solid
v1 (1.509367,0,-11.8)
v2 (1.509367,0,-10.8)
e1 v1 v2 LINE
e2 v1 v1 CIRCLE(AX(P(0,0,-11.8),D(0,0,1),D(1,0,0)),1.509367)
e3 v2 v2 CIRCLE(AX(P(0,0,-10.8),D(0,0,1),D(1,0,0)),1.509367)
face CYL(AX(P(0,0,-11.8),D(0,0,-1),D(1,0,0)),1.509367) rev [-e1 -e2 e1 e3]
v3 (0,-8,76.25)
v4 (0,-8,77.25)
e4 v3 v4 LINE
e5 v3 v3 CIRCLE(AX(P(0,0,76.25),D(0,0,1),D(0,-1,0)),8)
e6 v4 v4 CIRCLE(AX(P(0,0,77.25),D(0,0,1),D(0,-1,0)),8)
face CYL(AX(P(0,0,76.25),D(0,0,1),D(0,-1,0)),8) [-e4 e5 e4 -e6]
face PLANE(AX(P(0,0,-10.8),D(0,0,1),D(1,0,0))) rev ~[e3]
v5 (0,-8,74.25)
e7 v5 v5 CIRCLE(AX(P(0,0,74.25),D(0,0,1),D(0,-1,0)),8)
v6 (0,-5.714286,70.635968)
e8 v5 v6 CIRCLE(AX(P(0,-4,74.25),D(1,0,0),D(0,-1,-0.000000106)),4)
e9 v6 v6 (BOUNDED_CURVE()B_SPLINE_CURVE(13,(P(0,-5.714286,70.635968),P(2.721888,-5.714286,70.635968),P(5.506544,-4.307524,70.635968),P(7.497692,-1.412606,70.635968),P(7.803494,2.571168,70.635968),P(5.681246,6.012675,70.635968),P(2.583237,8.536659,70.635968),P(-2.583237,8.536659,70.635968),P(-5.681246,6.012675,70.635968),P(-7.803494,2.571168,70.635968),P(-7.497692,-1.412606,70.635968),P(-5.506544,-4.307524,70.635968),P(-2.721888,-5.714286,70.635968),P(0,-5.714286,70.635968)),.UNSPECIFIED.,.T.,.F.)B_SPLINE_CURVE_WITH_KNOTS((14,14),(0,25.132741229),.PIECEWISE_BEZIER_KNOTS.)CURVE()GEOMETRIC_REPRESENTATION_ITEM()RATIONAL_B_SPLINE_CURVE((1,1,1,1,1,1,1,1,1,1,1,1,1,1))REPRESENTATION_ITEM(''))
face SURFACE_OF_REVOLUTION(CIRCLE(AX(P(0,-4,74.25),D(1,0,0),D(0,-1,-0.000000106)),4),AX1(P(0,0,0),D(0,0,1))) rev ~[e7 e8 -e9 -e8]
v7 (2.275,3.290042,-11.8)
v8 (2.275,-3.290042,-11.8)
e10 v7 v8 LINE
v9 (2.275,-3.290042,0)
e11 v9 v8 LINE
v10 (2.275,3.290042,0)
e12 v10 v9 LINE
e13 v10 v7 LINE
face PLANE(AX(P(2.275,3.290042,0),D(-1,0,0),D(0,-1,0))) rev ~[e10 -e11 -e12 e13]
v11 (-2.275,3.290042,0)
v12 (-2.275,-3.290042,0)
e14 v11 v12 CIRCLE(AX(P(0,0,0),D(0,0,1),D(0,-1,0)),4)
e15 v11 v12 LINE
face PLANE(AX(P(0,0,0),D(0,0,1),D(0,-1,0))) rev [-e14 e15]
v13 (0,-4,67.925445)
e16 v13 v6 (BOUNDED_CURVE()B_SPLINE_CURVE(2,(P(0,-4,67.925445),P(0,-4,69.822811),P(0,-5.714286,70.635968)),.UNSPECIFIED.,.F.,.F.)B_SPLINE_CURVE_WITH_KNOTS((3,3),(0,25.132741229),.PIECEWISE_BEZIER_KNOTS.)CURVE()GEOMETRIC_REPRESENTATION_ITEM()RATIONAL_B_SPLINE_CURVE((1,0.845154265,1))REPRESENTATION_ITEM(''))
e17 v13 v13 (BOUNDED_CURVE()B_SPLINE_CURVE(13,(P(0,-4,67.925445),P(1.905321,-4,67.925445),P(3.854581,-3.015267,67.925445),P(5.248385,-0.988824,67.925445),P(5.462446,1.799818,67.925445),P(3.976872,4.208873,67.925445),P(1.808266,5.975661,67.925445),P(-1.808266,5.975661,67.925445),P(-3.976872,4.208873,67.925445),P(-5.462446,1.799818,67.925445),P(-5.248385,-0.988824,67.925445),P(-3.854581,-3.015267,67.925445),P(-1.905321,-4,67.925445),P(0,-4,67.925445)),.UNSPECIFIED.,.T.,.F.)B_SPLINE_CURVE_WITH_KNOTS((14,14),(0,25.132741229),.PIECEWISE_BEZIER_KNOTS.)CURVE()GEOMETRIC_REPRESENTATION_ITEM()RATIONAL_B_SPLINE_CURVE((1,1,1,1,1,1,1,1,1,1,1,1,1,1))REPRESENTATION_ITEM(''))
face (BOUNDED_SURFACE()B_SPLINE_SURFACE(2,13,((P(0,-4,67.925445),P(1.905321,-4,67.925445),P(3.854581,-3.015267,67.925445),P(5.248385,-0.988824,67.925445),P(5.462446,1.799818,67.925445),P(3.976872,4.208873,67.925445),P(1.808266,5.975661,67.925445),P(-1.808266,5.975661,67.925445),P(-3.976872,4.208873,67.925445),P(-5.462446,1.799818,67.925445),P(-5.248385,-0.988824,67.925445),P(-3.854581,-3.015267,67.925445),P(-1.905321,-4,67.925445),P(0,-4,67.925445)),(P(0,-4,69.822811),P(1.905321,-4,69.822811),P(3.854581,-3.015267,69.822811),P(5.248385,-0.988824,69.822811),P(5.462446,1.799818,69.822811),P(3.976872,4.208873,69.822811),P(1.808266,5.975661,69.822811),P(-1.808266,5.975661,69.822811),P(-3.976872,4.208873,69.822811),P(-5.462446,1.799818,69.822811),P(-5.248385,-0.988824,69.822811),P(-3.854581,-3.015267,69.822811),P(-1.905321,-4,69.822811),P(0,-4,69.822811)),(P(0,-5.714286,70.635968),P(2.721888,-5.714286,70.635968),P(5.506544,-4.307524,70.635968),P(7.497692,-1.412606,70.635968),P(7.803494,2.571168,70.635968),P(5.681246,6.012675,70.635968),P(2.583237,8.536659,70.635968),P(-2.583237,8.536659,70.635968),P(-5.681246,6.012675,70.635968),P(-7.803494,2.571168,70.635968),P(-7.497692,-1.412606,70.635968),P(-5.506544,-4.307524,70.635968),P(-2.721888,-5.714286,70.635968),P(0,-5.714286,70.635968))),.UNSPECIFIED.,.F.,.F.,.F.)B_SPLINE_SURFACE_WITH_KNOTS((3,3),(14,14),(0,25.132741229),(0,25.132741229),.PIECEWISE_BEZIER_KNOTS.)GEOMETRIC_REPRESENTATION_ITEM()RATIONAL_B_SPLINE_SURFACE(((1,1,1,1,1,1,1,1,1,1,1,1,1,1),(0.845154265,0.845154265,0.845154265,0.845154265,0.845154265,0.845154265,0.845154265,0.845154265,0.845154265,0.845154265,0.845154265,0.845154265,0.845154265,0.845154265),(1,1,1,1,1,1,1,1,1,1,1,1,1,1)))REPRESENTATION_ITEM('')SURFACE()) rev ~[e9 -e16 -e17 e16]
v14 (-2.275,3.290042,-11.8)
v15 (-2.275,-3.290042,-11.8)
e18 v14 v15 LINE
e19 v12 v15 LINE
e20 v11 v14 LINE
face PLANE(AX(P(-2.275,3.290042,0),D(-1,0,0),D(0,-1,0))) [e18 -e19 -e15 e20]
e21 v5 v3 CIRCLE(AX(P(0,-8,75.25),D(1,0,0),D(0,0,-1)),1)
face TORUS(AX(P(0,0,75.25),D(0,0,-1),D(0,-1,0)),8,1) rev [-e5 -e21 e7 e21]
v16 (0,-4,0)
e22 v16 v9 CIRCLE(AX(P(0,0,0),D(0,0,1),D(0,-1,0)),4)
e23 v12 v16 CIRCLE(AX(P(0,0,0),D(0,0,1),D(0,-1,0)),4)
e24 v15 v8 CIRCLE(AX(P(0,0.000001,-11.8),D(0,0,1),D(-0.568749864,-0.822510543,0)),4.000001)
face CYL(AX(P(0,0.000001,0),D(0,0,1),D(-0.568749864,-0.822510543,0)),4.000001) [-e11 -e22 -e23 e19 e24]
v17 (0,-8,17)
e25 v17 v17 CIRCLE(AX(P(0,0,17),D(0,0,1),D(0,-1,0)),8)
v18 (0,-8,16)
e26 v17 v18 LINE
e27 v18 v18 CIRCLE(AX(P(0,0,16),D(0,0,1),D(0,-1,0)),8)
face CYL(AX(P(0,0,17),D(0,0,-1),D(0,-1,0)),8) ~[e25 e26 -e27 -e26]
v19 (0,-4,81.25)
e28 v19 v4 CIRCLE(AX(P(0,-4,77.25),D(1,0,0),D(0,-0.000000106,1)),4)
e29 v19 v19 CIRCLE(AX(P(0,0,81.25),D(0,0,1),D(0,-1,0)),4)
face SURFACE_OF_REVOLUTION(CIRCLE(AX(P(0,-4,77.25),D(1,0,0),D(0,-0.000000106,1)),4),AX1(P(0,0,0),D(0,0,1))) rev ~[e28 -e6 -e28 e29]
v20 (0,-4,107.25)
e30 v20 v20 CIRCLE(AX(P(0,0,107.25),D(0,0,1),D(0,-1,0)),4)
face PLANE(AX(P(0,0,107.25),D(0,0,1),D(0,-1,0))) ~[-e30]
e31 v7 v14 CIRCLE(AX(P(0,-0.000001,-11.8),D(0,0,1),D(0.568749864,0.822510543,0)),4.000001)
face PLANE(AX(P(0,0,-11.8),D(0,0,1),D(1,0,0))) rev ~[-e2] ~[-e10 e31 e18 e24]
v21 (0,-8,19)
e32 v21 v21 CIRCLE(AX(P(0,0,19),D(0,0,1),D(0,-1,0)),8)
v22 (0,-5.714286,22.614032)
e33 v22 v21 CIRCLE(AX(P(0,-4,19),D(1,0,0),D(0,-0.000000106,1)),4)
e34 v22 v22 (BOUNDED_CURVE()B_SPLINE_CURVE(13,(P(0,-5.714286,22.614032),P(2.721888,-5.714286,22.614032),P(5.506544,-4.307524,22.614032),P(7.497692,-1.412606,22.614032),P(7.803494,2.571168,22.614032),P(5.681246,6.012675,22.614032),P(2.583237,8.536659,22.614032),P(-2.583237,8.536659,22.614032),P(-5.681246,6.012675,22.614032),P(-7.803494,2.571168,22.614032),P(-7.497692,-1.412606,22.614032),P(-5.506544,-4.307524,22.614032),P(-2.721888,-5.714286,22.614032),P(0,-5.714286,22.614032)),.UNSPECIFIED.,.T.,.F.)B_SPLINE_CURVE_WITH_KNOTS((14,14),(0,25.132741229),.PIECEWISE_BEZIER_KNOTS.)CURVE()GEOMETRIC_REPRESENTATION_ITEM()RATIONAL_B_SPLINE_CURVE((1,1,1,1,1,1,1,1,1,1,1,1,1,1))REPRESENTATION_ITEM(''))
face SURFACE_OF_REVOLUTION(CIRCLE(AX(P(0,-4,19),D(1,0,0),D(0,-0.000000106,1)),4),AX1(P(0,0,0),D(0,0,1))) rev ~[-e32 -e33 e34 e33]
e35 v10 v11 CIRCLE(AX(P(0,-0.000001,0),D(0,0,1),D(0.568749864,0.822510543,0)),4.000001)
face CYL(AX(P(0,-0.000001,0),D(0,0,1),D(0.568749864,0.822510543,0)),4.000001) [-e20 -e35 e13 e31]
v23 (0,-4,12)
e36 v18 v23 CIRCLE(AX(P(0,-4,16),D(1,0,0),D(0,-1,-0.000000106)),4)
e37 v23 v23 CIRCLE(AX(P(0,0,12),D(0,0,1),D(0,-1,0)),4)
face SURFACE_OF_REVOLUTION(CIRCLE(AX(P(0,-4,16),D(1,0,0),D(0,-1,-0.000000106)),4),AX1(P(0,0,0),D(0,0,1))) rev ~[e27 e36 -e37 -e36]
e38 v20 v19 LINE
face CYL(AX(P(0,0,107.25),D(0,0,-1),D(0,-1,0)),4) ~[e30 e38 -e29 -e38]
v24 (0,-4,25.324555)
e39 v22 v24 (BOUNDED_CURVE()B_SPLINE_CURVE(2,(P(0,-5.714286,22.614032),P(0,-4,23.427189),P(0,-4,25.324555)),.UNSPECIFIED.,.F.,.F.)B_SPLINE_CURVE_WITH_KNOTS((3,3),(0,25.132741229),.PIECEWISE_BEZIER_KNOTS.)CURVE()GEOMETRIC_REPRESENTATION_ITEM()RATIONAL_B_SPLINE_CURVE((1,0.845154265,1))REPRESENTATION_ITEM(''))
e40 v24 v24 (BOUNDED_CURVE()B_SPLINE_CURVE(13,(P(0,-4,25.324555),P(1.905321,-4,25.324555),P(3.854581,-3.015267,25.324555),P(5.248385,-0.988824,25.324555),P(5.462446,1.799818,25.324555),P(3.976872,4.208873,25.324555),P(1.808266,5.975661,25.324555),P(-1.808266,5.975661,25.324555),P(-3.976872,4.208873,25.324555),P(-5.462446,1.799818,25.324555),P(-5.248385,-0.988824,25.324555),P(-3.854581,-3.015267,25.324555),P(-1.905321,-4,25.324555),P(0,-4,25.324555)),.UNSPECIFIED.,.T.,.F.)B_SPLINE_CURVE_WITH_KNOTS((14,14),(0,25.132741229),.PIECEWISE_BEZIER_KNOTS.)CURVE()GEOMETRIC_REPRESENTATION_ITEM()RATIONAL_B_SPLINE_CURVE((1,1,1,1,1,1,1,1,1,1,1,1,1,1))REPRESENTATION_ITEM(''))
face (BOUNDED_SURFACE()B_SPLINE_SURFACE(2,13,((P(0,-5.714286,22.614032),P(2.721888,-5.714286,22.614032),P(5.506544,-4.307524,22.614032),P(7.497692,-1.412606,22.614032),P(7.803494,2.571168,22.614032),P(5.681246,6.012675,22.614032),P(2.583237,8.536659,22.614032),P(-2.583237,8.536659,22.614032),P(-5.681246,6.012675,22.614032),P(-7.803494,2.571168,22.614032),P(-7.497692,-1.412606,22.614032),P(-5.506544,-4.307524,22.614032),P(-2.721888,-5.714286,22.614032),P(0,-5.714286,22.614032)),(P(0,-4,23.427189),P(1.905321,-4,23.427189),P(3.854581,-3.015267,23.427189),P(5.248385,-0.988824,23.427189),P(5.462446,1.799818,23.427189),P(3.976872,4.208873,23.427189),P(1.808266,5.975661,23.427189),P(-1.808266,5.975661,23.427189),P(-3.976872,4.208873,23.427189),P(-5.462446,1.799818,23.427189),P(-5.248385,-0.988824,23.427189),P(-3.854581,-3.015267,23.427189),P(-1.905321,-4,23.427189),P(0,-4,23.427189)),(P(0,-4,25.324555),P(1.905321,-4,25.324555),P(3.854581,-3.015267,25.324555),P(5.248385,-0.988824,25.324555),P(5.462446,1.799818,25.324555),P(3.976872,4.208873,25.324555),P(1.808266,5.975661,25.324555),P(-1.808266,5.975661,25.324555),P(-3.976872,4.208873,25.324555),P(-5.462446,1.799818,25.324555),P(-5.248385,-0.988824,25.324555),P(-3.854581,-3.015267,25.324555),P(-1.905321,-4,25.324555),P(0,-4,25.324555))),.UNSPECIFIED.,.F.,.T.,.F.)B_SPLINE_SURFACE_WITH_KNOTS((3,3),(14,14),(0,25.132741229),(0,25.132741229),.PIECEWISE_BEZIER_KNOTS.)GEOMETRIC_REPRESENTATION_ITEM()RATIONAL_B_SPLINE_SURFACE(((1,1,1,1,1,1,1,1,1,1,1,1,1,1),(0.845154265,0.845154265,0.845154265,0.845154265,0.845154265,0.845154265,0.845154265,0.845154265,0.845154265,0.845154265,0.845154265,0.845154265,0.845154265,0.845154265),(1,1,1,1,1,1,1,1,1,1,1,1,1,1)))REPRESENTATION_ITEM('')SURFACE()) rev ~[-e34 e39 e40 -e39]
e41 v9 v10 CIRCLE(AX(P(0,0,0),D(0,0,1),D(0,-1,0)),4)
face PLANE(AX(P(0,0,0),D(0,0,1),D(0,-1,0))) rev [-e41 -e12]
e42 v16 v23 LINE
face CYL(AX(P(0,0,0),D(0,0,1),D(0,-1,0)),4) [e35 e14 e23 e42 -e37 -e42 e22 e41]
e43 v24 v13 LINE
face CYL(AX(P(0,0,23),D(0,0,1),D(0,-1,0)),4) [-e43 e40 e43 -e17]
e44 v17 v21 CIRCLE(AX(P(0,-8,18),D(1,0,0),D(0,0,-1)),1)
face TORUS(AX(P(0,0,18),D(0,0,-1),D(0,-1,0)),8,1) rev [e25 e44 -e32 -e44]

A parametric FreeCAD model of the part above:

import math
import FreeCAD as App
import Part
import Sketcher

V = App.Vector


def edges_at(feature, points):
    """Names of the edges that pass closest to the given points."""
    edges = feature.Shape.Edges
    near = lambda p: min(range(len(edges)), key=lambda i: edges[i].distToShape(Part.Vertex(*p))[0])
    return sorted({f"Edge{near(p) + 1}" for p in points})

doc = App.newDocument("Part")
body = doc.addObject("PartDesign::Body", "Body")

sketch1 = doc.addObject("Sketcher::SketchObject", "Sketch")
body.addObject(sketch1)
sketch1.AttachmentSupport = (doc.YZ_Plane, [""])
sketch1.MapMode = "FlatFace"
sketch1.addGeometry([
    Part.LineSegment(V(-4, 0, 0), V(0, 0, 0)),
    Part.LineSegment(V(0, 0, 0), V(0, 107.2, 0)),
    Part.LineSegment(V(0, 107.2, 0), V(-4, 107.2, 0)),
    Part.LineSegment(V(-4, 107.2, 0), V(-4, 81.2, 0)),
    Part.ArcOfCircle(Part.Circle(V(-4, 77.2, 0), V(0, 0, 1), 4), math.radians(90), math.radians(180)),
    Part.LineSegment(V(-8, 77.2, 0), V(-8, 76.2, 0)),
    Part.ArcOfCircle(Part.Circle(V(-8, 75.2, 0), V(0, 0, 1), 1), math.radians(-90), math.radians(90)),
    Part.ArcOfCircle(Part.Circle(V(-4, 74.3, 0), V(0, 0, 1), 4), math.radians(-180), math.radians(-90)),
    Part.LineSegment(V(-4, 70.2, 0), V(-4, 23, 0)),
    Part.ArcOfCircle(Part.Circle(V(-4, 19, 0), V(0, 0, 1), 4), math.radians(90), math.radians(180)),
    Part.ArcOfCircle(Part.Circle(V(-8, 18, 0), V(0, 0, 1), 1), math.radians(-90), math.radians(90)),
    Part.LineSegment(V(-8, 17, 0), V(-8, 16, 0)),
    Part.ArcOfCircle(Part.Circle(V(-4, 16, 0), V(0, 0, 1), 4), math.radians(-180), math.radians(-90)),
    Part.LineSegment(V(-4, 12, 0), V(-4, 0, 0)),
], False)
sketch1.addConstraint([
    Sketcher.Constraint("Coincident", 0, 2, 1, 1),
    Sketcher.Constraint("Coincident", 1, 2, 2, 1),
    Sketcher.Constraint("Coincident", 2, 2, 3, 1),
    Sketcher.Constraint("Coincident", 3, 2, 4, 1),
    Sketcher.Constraint("Tangent", 4, 2, 5, 1),
    Sketcher.Constraint("Coincident", 5, 2, 6, 2),
    Sketcher.Constraint("Coincident", 6, 1, 7, 1),
    Sketcher.Constraint("Coincident", 7, 2, 8, 1),
    Sketcher.Constraint("Coincident", 8, 2, 9, 1),
    Sketcher.Constraint("Coincident", 9, 2, 10, 2),
    Sketcher.Constraint("Coincident", 10, 1, 11, 1),
    Sketcher.Constraint("Tangent", 11, 2, 12, 1),
    Sketcher.Constraint("Coincident", 12, 2, 13, 1),
    Sketcher.Constraint("Coincident", 13, 2, 0, 1),
    Sketcher.Constraint("Horizontal", 0),
    Sketcher.Constraint("Vertical", 1),
    Sketcher.Constraint("Horizontal", 2),
    Sketcher.Constraint("Vertical", 3),
    Sketcher.Constraint("Vertical", 5),
    Sketcher.Constraint("Vertical", 8),
    Sketcher.Constraint("Vertical", 11),
    Sketcher.Constraint("Vertical", 13),
    Sketcher.Constraint("Coincident", 0, 2, -1, 1),
    Sketcher.Constraint("Equal", 4, 7),
    Sketcher.Constraint("Equal", 7, 9),
    Sketcher.Constraint("Equal", 6, 10),
    Sketcher.Constraint("Equal", 9, 12),
    Sketcher.Constraint("Horizontal", 7, 3, 6, 1),
    Sketcher.Constraint("Vertical", 4, 3, 7, 3),
    Sketcher.Constraint("Vertical", 7, 3, 9, 3),
    Sketcher.Constraint("Vertical", 6, 3, 10, 3),
    Sketcher.Constraint("Vertical", 9, 3, 12, 3),
    Sketcher.Constraint("Vertical", 12, 3, 2, 2),
    Sketcher.Constraint("Vertical", 10, 3, 4, 2),
    Sketcher.Constraint("Vertical", 3, 2, 7, 2),
    Sketcher.Constraint("Vertical", 8, 2, 12, 2),
    Sketcher.Constraint("Equal", 5, 11),
    Sketcher.Constraint("Radius", 4, 4.0),
    Sketcher.Constraint("Radius", 6, 1.0),
    Sketcher.Constraint("DistanceX", 0, 1, 0, 2, 4.0),
    Sketcher.Constraint("DistanceY", 3, 2, 3, 1, 26.0),
    Sketcher.Constraint("DistanceY", 5, 2, 5, 1, 1.0),
    Sketcher.Constraint("DistanceY", 13, 2, 13, 1, 12.0),
    Sketcher.Constraint("DistanceY", -1, 1, 9, 3, 19.0),
    Sketcher.Constraint("DistanceY", 1, 1, 1, 2, 107.25),
])
revolution = doc.addObject("PartDesign::Revolution", "Revolution")
body.addObject(revolution)
revolution.Profile = sketch1
revolution.ReferenceAxis = (sketch1, ["V_Axis"])
revolution.Angle = 360
doc.recompute()

fillet = doc.addObject("PartDesign::Fillet", "Fillet")
body.addObject(fillet)
fillet.Base = (revolution, edges_at(revolution, [(0, 4, 23), (0, 4, 70.25), (0, -4, 46.625)]))
fillet.Radius = 3

sketch2 = doc.addObject("Sketcher::SketchObject", "Sketch001")
body.addObject(sketch2)
sketch2.AttachmentSupport = (doc.XY_Plane, [""])
sketch2.MapMode = "FlatFace"
sketch2.addGeometry([
    Part.ArcOfCircle(Part.Circle(V(0, 0, 0), V(0, 0, 1), 4), math.radians(55), math.radians(125)),
    Part.LineSegment(V(-2.3, 3.3, 0), V(-2.3, -3.3, 0)),
    Part.ArcOfCircle(Part.Circle(V(0, 0, 0), V(0, 0, 1), 4), math.radians(-125), math.radians(-55)),
    Part.LineSegment(V(2.3, -3.3, 0), V(2.3, 3.3, 0)),
], False)
sketch2.addConstraint([
    Sketcher.Constraint("Coincident", 0, 2, 1, 1),
    Sketcher.Constraint("Coincident", 1, 2, 2, 1),
    Sketcher.Constraint("Coincident", 2, 2, 3, 1),
    Sketcher.Constraint("Coincident", 3, 2, 0, 1),
    Sketcher.Constraint("Vertical", 1),
    Sketcher.Constraint("Vertical", 3),
    Sketcher.Constraint("Coincident", 0, 3, -1, 1),
    Sketcher.Constraint("Coincident", 2, 3, -1, 1),
    Sketcher.Constraint("Equal", 0, 2),
    Sketcher.Constraint("Horizontal", 1, 2, 2, 2),
    Sketcher.Constraint("Radius", 0, 4.000001),
    Sketcher.Constraint("DistanceX", 1, 2, 2, 2, 4.55),
])
pad1 = doc.addObject("PartDesign::Pad", "Pad")
body.addObject(pad1)
pad1.Profile = sketch2
pad1.Length = 11.8
pad1.Reversed = True

sketch3 = doc.addObject("Sketcher::SketchObject", "Sketch002")
body.addObject(sketch3)
sketch3.AttachmentSupport = (doc.XY_Plane, [""])
sketch3.MapMode = "FlatFace"
sketch3.AttachmentOffset = App.Placement(V(0, 0, -11.8), App.Rotation())
sketch3.addGeometry(Part.Circle(V(0, 0, 0), V(0, 0, 1), 1.5), False)
sketch3.addConstraint([
    Sketcher.Constraint("Coincident", 0, 3, -1, 1),
    Sketcher.Constraint("Diameter", 0, 3.018734),
])
pocket1 = doc.addObject("PartDesign::Pocket", "Pocket")
body.addObject(pocket1)
pocket1.Profile = sketch3
pocket1.Length = 1
pocket1.Reversed = True

doc.recompute()
